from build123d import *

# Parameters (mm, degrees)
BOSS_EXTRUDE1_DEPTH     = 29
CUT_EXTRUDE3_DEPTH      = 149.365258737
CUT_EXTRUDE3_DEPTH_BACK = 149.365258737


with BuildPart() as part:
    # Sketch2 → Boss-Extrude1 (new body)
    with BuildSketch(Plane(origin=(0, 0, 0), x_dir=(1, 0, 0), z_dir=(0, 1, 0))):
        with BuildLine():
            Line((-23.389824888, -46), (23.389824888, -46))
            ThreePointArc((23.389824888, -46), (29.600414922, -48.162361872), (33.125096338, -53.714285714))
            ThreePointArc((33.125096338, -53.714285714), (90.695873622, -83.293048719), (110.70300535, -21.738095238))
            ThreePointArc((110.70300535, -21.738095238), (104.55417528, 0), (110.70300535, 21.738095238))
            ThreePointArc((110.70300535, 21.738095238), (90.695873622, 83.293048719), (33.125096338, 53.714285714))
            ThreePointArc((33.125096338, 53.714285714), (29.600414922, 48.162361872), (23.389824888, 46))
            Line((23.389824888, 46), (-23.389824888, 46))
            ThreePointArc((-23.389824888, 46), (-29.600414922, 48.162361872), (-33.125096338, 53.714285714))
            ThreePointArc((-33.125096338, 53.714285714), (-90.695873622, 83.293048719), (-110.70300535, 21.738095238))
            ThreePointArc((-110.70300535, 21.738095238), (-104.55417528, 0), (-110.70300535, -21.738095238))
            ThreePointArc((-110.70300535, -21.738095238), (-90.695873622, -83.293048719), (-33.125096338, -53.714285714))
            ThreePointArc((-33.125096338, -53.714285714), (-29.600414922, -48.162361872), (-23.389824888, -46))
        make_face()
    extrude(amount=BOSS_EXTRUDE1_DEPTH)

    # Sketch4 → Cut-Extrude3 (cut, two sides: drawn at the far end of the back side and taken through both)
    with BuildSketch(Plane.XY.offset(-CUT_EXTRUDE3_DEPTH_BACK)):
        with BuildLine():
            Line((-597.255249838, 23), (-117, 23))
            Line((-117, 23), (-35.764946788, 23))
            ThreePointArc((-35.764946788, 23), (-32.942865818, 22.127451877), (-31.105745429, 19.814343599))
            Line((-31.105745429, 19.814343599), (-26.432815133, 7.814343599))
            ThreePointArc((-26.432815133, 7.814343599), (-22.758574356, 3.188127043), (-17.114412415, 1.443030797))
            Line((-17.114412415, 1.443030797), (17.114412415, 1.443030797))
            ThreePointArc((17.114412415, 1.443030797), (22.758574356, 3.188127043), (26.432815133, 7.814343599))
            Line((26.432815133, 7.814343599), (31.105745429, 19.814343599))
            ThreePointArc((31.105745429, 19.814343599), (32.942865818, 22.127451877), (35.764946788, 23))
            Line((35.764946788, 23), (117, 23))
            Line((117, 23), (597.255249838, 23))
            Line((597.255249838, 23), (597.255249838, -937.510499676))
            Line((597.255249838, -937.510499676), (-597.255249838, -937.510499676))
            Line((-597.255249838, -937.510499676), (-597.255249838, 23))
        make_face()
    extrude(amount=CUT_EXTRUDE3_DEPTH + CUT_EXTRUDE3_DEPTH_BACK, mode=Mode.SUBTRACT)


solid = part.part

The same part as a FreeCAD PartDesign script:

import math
import FreeCAD as App
import Part
import Sketcher

V = App.Vector
Q = App.Units.Quantity

doc = App.newDocument("Part")
body = doc.addObject("PartDesign::Body", "Body")

sketch1 = body.newObject("Sketcher::SketchObject", "Sketch")
sketch1.AttachmentSupport = (doc.getObject("XZ_Plane"), [""])
sketch1.MapMode = "FlatFace"
sketch1.addGeometry(Part.LineSegment(V(-23.389825, 46, 0), V(23.389825, 46, 0)), False)
sketch1.addGeometry(Part.ArcOfCircle(Part.Circle(V(23.389825, 56, 0), V(0, 0, 1), 10), math.radians(-90), math.radians(-13.21298)), False)
sketch1.addGeometry(Part.ArcOfCircle(Part.Circle(V(74.5, 44, 0), V(0, 0, 1), 42.5), math.radians(-31.588136), math.radians(166.78702)), False)
sketch1.addGeometry(Part.ArcOfCircle(Part.Circle(V(146.054175, 0, 0), V(0, 0, 1), 41.5), math.radians(148.411864), math.radians(211.588136)), False)
sketch1.addGeometry(Part.ArcOfCircle(Part.Circle(V(74.5, -44, 0), V(0, 0, 1), 42.5), math.radians(-166.78702), math.radians(31.588136)), False)
sketch1.addGeometry(Part.ArcOfCircle(Part.Circle(V(23.389825, -56, 0), V(0, 0, 1), 10), math.radians(13.21298), math.radians(90)), False)
sketch1.addGeometry(Part.LineSegment(V(23.389825, -46, 0), V(-23.389825, -46, 0)), False)
sketch1.addGeometry(Part.ArcOfCircle(Part.Circle(V(-23.389825, -56, 0), V(0, 0, 1), 10), math.radians(90), math.radians(166.78702)), False)
sketch1.addGeometry(Part.ArcOfCircle(Part.Circle(V(-74.5, -44, 0), V(0, 0, 1), 42.5), math.radians(148.411864), math.radians(346.78702)), False)
sketch1.addGeometry(Part.ArcOfCircle(Part.Circle(V(-146.054175, 0, 0), V(0, 0, 1), 41.5), math.radians(-31.588136), math.radians(31.588136)), False)
sketch1.addGeometry(Part.ArcOfCircle(Part.Circle(V(-74.5, 44, 0), V(0, 0, 1), 42.5), math.radians(13.21298), math.radians(211.588136)), False)
sketch1.addGeometry(Part.ArcOfCircle(Part.Circle(V(-23.389825, 56, 0), V(0, 0, 1), 10), math.radians(-166.78702), math.radians(-90)), False)
sketch1.addConstraint(Sketcher.Constraint("Tangent", 0, 2, 1, 1))
sketch1.addConstraint(Sketcher.Constraint("Tangent", 1, 2, 2, 2))
sketch1.addConstraint(Sketcher.Constraint("Tangent", 2, 1, 3, 1))
sketch1.addConstraint(Sketcher.Constraint("Tangent", 3, 2, 4, 2))
sketch1.addConstraint(Sketcher.Constraint("Tangent", 4, 1, 5, 1))
sketch1.addConstraint(Sketcher.Constraint("Tangent", 5, 2, 6, 1))
sketch1.addConstraint(Sketcher.Constraint("Tangent", 6, 2, 7, 1))
sketch1.addConstraint(Sketcher.Constraint("Tangent", 7, 2, 8, 2))
sketch1.addConstraint(Sketcher.Constraint("Tangent", 8, 1, 9, 1))
sketch1.addConstraint(Sketcher.Constraint("Tangent", 9, 2, 10, 2))
sketch1.addConstraint(Sketcher.Constraint("Tangent", 10, 1, 11, 1))
sketch1.addConstraint(Sketcher.Constraint("Tangent", 11, 2, 0, 1))
sketch1.addConstraint(Sketcher.Constraint("Horizontal", 0))
sketch1.addConstraint(Sketcher.Constraint("Horizontal", 6))
sketch1.addConstraint(Sketcher.Constraint("Equal", 2, 4))
sketch1.addConstraint(Sketcher.Constraint("Equal", 1, 5))
sketch1.addConstraint(Sketcher.Constraint("Equal", 5, 7))
sketch1.addConstraint(Sketcher.Constraint("Equal", 4, 8))
sketch1.addConstraint(Sketcher.Constraint("Equal", 3, 9))
sketch1.addConstraint(Sketcher.Constraint("Equal", 8, 10))
sketch1.addConstraint(Sketcher.Constraint("Equal", 7, 11))
sketch1.addConstraint(Sketcher.Constraint("Symmetric", 1, 3, 7, 3, -1, 1))
sketch1.addConstraint(Sketcher.Constraint("Symmetric", 3, 3, 9, 3, -1, 1))
sketch1.addConstraint(Sketcher.Constraint("Symmetric", 4, 3, 8, 3, -2))
sketch1.addConstraint(Sketcher.Constraint("Horizontal", 2, 3, 10, 3))
sketch1.addConstraint(Sketcher.Constraint("Radius", 1, Q("10 mm")))
sketch1.addConstraint(Sketcher.Constraint("Radius", 2, Q("42.5 mm")))
sketch1.addConstraint(Sketcher.Constraint("Radius", 3, Q("41.5 mm")))
sketch1.addConstraint(Sketcher.Constraint("DistanceY", -1, 1, 1, 3, Q("56 mm")))
sketch1.addConstraint(Sketcher.Constraint("DistanceY", -1, 1, 2, 3, Q("44 mm")))
sketch1.addConstraint(Sketcher.Constraint("DistanceX", 8, 3, 4, 3, Q("149 mm")))
pad1 = body.newObject("PartDesign::Pad", "Pad")
pad1.Profile = sketch1
pad1.Length = 29
pad1.Reversed = True

sketch2 = body.newObject("Sketcher::SketchObject", "Sketch001")
sketch2.AttachmentSupport = (doc.getObject("XY_Plane"), [""])
sketch2.MapMode = "FlatFace"
sketch2.addGeometry(Part.LineSegment(V(-35.764947, 23, 0), V(-597.25525, 23, 0)), False)
sketch2.addGeometry(Part.LineSegment(V(-597.25525, 23, 0), V(-597.25525, -937.5105, 0)), False)
sketch2.addGeometry(Part.LineSegment(V(-597.25525, -937.5105, 0), V(597.25525, -937.5105, 0)), False)
sketch2.addGeometry(Part.LineSegment(V(597.25525, -937.5105, 0), V(597.25525, 23, 0)), False)
sketch2.addGeometry(Part.LineSegment(V(597.25525, 23, 0), V(35.764947, 23, 0)), False)
sketch2.addGeometry(Part.ArcOfCircle(Part.Circle(V(35.764947, 18, 0), V(0, 0, 1), 5), math.radians(90), math.radians(158.723521)), False)
sketch2.addGeometry(Part.LineSegment(V(31.105745, 19.814344, 0), V(26.432815, 7.814344, 0)), False)
sketch2.addGeometry(Part.ArcOfCircle(Part.Circle(V(17.114412, 11.443031, 0), V(0, 0, 1), 10), math.radians(-90), math.radians(-21.276479)), False)
sketch2.addGeometry(Part.LineSegment(V(17.114412, 1.443031, 0), V(-17.114412, 1.443031, 0)), False)
sketch2.addGeometry(Part.ArcOfCircle(Part.Circle(V(-17.114412, 11.443031, 0), V(0, 0, 1), 10), math.radians(-158.723521), math.radians(-90)), False)
sketch2.addGeometry(Part.LineSegment(V(-26.432815, 7.814344, 0), V(-31.105745, 19.814344, 0)), False)
sketch2.addGeometry(Part.ArcOfCircle(Part.Circle(V(-35.764947, 18, 0), V(0, 0, 1), 5), math.radians(21.276479), math.radians(90)), False)
sketch2.addConstraint(Sketcher.Constraint("Coincident", 0, 2, 1, 1))
sketch2.addConstraint(Sketcher.Constraint("Coincident", 1, 2, 2, 1))
sketch2.addConstraint(Sketcher.Constraint("Coincident", 2, 2, 3, 1))
sketch2.addConstraint(Sketcher.Constraint("Coincident", 3, 2, 4, 1))
sketch2.addConstraint(Sketcher.Constraint("Tangent", 4, 2, 5, 1))
sketch2.addConstraint(Sketcher.Constraint("Tangent", 5, 2, 6, 1))
sketch2.addConstraint(Sketcher.Constraint("Tangent", 6, 2, 7, 2))
sketch2.addConstraint(Sketcher.Constraint("Tangent", 7, 1, 8, 1))
sketch2.addConstraint(Sketcher.Constraint("Tangent", 8, 2, 9, 2))
sketch2.addConstraint(Sketcher.Constraint("Tangent", 9, 1, 10, 1))
sketch2.addConstraint(Sketcher.Constraint("Tangent", 10, 2, 11, 1))
sketch2.addConstraint(Sketcher.Constraint("Tangent", 11, 2, 0, 1))
sketch2.addConstraint(Sketcher.Constraint("Horizontal", 0))
sketch2.addConstraint(Sketcher.Constraint("Vertical", 1))
sketch2.addConstraint(Sketcher.Constraint("Horizontal", 2))
sketch2.addConstraint(Sketcher.Constraint("Vertical", 3))
sketch2.addConstraint(Sketcher.Constraint("Horizontal", 4))
sketch2.addConstraint(Sketcher.Constraint("Horizontal", 8))
sketch2.addConstraint(Sketcher.Constraint("Equal", 7, 9))
sketch2.addConstraint(Sketcher.Constraint("Equal", 5, 11))
sketch2.addConstraint(Sketcher.Constraint("Symmetric", 5, 3, 11, 3, -2))
sketch2.addConstraint(Sketcher.Constraint("Horizontal", 6, 2, 9, 1))
sketch2.addConstraint(Sketcher.Constraint("Equal", 0, 4))
sketch2.addConstraint(Sketcher.Constraint("Radius", 5, Q("5 mm")))
sketch2.addConstraint(Sketcher.Constraint("Radius", 7, Q("10 mm")))
sketch2.addConstraint(Sketcher.Constraint("DistanceY", -1, 1, 5, 3, Q("18 mm")))
sketch2.addConstraint(Sketcher.Constraint("DistanceY", 6, 2, 5, 2, Q("12 mm")))
sketch2.addConstraint(Sketcher.Constraint("DistanceX", 2, 1, 2, 2, Q("1194.5105 mm")))
sketch2.addConstraint(Sketcher.Constraint("DistanceY", 1, 2, 1, 1, Q("960.5105 mm")))
sketch2.addConstraint(Sketcher.Constraint("DistanceX", 5, 2, 5, 3, Q("4.659201 mm")))
sketch2.addConstraint(Sketcher.Constraint("DistanceX", 0, 2, 0, 1, Q("561.490303 mm")))
pocket1 = body.newObject("PartDesign::Pocket", "Pocket")
pocket1.Profile = sketch2
pocket1.Type = "ThroughAll"
pocket1.Midplane = True

doc.recompute()
